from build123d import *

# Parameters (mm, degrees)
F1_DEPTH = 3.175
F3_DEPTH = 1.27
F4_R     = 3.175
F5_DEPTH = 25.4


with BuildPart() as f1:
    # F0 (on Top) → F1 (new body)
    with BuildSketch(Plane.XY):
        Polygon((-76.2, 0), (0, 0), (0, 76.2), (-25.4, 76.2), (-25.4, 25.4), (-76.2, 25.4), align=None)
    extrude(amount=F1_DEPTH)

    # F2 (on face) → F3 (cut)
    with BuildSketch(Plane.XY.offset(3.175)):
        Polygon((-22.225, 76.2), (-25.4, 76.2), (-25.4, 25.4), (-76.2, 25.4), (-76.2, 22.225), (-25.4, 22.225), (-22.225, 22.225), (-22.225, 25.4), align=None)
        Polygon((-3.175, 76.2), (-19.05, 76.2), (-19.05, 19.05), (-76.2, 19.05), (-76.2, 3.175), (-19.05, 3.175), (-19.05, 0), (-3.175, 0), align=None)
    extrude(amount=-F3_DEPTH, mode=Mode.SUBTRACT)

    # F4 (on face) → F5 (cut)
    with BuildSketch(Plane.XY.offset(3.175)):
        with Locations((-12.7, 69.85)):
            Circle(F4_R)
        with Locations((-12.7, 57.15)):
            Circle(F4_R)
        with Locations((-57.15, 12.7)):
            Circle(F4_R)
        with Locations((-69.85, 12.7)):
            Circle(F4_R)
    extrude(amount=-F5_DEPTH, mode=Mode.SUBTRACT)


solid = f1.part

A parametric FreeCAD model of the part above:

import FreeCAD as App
import Part
import Sketcher
from FreeCAD import Vector
Q = App.Units.Quantity


def add_polygon(sketch, points):
    """Adds a closed chain of lines whose ends are joined by coincident constraints."""
    first, n = sketch.GeometryCount, len(points)
    for a, b in zip(points, points[1:] + points[:1]):
        sketch.addGeometry(Part.LineSegment(App.Vector(*a, 0), App.Vector(*b, 0)), False)
    for i in range(n):
        sketch.addConstraint(Sketcher.Constraint("Coincident", first + i, 2, first + (i + 1) % n, 1))

doc = App.newDocument("Part")
body = doc.addObject("PartDesign::Body", "Body")

# Sketch on XY plane
sketch1 = body.newObject("Sketcher::SketchObject", "Sketch")
sketch1.AttachmentSupport = (doc.getObject("XY_Plane"), [""])
sketch1.MapMode = "FlatFace"
add_polygon(sketch1, [(-76, 0), (0, 0), (0, 76), (-25, 76), (-25, 25), (-76, 25)])  # lines 0-5
sketch1.addConstraint([
    Sketcher.Constraint("Horizontal", 0),
    Sketcher.Constraint("Vertical", 1),
    Sketcher.Constraint("Horizontal", 2),
    Sketcher.Constraint("Vertical", 3),
    Sketcher.Constraint("Horizontal", 4),
    Sketcher.Constraint("Vertical", 5),
    Sketcher.Constraint("Coincident", 0, 2, -1, 1),
    Sketcher.Constraint("Equal", 0, 1),
    Sketcher.Constraint("Equal", 4, 3),
    Sketcher.Constraint("DistanceX", 0, 1, 0, 2, Q("3 in")),
    Sketcher.Constraint("DistanceX", 2, 2, 2, 1, Q("1 in")),
])
pad1 = body.newObject("PartDesign::Pad", "Pad")
pad1.Profile = sketch1
pad1.Length = Q("0.125 in")

# Sketch on XY plane
sketch2 = body.newObject("Sketcher::SketchObject", "Sketch001")
sketch2.AttachmentSupport = (doc.getObject("XY_Plane"), [""])
sketch2.MapMode = "FlatFace"
sketch2.AttachmentOffset = App.Placement(Vector(0, 0, 0.125 * 25.4), App.Rotation())
add_polygon(sketch2, [(-22.2, 76.2), (-25.4, 76.2), (-25.4, 25.4), (-76.2, 25.4), (-76.2, 22.2), (-22.2, 22.2)])  # lines 0-5
add_polygon(sketch2, [(-3.2, 76.2), (-19.1, 76.2), (-19.1, 19.1), (-76.2, 19.1), (-76.2, 3.2), (-19.1, 3.2), (-19.1, 0), (-3.2, 0)])  # lines 6-13
sketch2.addConstraint([
    Sketcher.Constraint("Horizontal", 0),
    Sketcher.Constraint("Vertical", 1),
    Sketcher.Constraint("Horizontal", 2),
    Sketcher.Constraint("Vertical", 3),
    Sketcher.Constraint("Horizontal", 4),
    Sketcher.Constraint("Vertical", 5),
    Sketcher.Constraint("Horizontal", 6),
    Sketcher.Constraint("Vertical", 7),
    Sketcher.Constraint("Horizontal", 8),
    Sketcher.Constraint("Vertical", 9),
    Sketcher.Constraint("Horizontal", 10),
    Sketcher.Constraint("Vertical", 11),
    Sketcher.Constraint("Horizontal", 12),
    Sketcher.Constraint("Vertical", 13),
    Sketcher.Constraint("PointOnObject", 11, 2, -1),
    Sketcher.Constraint("Horizontal", 5, 2, 6, 2),
    Sketcher.Constraint("Vertical", 3, 2, 8, 2),
    Sketcher.Constraint("Vertical", 7, 2, 10, 2),
    Sketcher.Constraint("Equal", 2, 1),
    Sketcher.Constraint("Equal", 0, 3),
    Sketcher.Constraint("Equal", 10, 7),
    Sketcher.Constraint("Equal", 12, 9),
    Sketcher.Constraint("Equal", 3, 11),
    Sketcher.Constraint("DistanceX", 2, 2, 2, 1, Q("2 in")),
    Sketcher.Constraint("DistanceY", 13, 1, 13, 2, Q("3 in")),
    Sketcher.Constraint("DistanceX", 0, 2, -1, 1, Q("1 in")),
    Sketcher.Constraint("DistanceX", 8, 2, 8, 1, Q("2.25 in")),
    Sketcher.Constraint("DistanceX", 0, 2, 0, 1, Q("0.125 in")),
])
pocket1 = body.newObject("PartDesign::Pocket", "Pocket")
pocket1.Profile = sketch2
pocket1.Length = Q("0.05 in")

# Sketch on XY plane
sketch3 = body.newObject("Sketcher::SketchObject", "Sketch002")
sketch3.AttachmentSupport = (doc.getObject("XY_Plane"), [""])
sketch3.MapMode = "FlatFace"
sketch3.AttachmentOffset = App.Placement(Vector(0, 0, 0.125 * 25.4), App.Rotation())
sketch3.addGeometry([
    Part.Circle(Vector(-12.7, 69.8, 0), Vector(0, 0, 1), 3.2),
    Part.Circle(Vector(-12.7, 57.1, 0), Vector(0, 0, 1), 3.2),
    Part.Circle(Vector(-57.1, 12.7, 0), Vector(0, 0, 1), 3.2),
    Part.Circle(Vector(-69.8, 12.7, 0), Vector(0, 0, 1), 3.2),
], False)
sketch3.addConstraint([
    Sketcher.Constraint("Equal", 0, 1),
    Sketcher.Constraint("Equal", 1, 2),
    Sketcher.Constraint("Equal", 2, 3),
    Sketcher.Constraint("Horizontal", 2, 3, 3, 3),
    Sketcher.Constraint("Vertical", 0, 3, 1, 3),
    Sketcher.Constraint("Diameter", 0, Q("0.25 in")),
    Sketcher.Constraint("DistanceX", 0, 3, -1, 1, Q("0.5 in")),
    Sketcher.Constraint("DistanceY", -1, 1, 2, 3, Q("0.5 in")),
    Sketcher.Constraint("DistanceY", 1, 3, 0, 3, Q("0.5 in")),
    Sketcher.Constraint("DistanceX", 3, 3, 2, 3, Q("0.5 in")),
    Sketcher.Constraint("DistanceY", -1, 1, 0, 3, Q("2.75 in")),
    Sketcher.Constraint("DistanceX", 2, 3, -1, 1, Q("2.25 in")),
])
pocket2 = body.newObject("PartDesign::Pocket", "Pocket001")
pocket2.Profile = sketch3
pocket2.Length = Q("1 in")

doc.recompute()
